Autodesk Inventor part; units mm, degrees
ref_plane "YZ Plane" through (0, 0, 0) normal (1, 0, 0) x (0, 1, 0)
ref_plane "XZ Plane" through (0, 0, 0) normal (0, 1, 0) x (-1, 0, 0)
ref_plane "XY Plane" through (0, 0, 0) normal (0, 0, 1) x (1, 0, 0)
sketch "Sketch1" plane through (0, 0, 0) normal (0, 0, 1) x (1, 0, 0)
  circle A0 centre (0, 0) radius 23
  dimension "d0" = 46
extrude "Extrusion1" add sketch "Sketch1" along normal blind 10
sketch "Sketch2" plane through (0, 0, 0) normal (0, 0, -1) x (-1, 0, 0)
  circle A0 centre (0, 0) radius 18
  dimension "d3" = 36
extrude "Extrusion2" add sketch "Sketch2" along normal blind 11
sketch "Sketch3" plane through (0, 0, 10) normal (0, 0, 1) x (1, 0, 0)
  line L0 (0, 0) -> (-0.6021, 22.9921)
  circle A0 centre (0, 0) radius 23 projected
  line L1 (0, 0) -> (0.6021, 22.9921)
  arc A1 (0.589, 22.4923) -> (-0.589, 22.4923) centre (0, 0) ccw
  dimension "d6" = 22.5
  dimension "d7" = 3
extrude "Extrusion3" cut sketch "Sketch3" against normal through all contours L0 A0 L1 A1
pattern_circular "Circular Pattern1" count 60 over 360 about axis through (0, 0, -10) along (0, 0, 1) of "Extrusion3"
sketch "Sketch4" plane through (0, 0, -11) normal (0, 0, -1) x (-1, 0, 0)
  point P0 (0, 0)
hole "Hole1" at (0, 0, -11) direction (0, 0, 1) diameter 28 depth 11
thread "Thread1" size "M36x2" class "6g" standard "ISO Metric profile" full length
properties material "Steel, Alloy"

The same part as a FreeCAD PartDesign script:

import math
import FreeCAD as App
import Part
import Sketcher

V = App.Vector
Q = App.Units.Quantity

doc = App.newDocument("Part")
body = doc.addObject("PartDesign::Body", "Body")

sketch1 = body.newObject("Sketcher::SketchObject", "Sketch")
sketch1.AttachmentSupport = (doc.getObject("XY_Plane"), [""])
sketch1.MapMode = "FlatFace"
sketch1.addGeometry(Part.Circle(V(0, 0, 0), V(0, 0, 1), 23), False)
sketch1.addConstraint([
    Sketcher.Constraint("Coincident", 0, 3, -1, 1),
    Sketcher.Constraint("Diameter", 0, Q("46 mm")),
])
pad1 = body.newObject("PartDesign::Pad", "Pad")
pad1.Profile = sketch1
pad1.Length = 10

sketch2 = body.newObject("Sketcher::SketchObject", "Sketch001")
sketch2.AttachmentSupport = (doc.getObject("XY_Plane"), [""])
sketch2.MapMode = "FlatFace"
sketch2.addGeometry(Part.Circle(V(0, 0, 0), V(0, 0, 1), 18), False)
sketch2.addConstraint([
    Sketcher.Constraint("Coincident", 0, 3, -1, 1),
    Sketcher.Constraint("Diameter", 0, Q("36 mm")),
])
pad2 = body.newObject("PartDesign::Pad", "Pad001")
pad2.Profile = sketch2
pad2.Length = 11
pad2.Reversed = True

sketch3 = body.newObject("Sketcher::SketchObject", "Sketch002")
sketch3.AttachmentSupport = (doc.getObject("XY_Plane"), [""])
sketch3.MapMode = "FlatFace"
sketch3.AttachmentOffset = App.Placement(V(0, 0, 10), App.Rotation())
sketch3.addGeometry([
    Part.LineSegment(V(-0.6, 22.99, 0), V(-0.59, 22.49, 0)),
    Part.ArcOfCircle(Part.Circle(V(0, 0, 0), V(0, 0, 1), 22.5), math.radians(88.5), math.radians(91.5)),
    Part.LineSegment(V(0.59, 22.49, 0), V(0.6, 22.99, 0)),
    Part.ArcOfCircle(Part.Circle(V(0, 0, 0), V(0, 0, 1), 23), math.radians(88.5), math.radians(91.5)),
], False)
sketch3.addConstraint([
    Sketcher.Constraint("Coincident", 0, 2, 1, 2),
    Sketcher.Constraint("Coincident", 1, 1, 2, 1),
    Sketcher.Constraint("Coincident", 2, 2, 3, 1),
    Sketcher.Constraint("Coincident", 3, 2, 0, 1),
    Sketcher.Constraint("Coincident", 1, 3, -1, 1),
    Sketcher.Constraint("Coincident", 3, 3, -1, 1),
    Sketcher.Constraint("Horizontal", 0, 2, 1, 1),
    Sketcher.Constraint("Horizontal", 2, 2, 3, 2),
    Sketcher.Constraint("Radius", 1, Q("22.5 mm")),
    Sketcher.Constraint("Radius", 3, Q("23 mm")),
    Sketcher.Constraint("Angle", 0, Q("-88.5 deg")),
    Sketcher.Constraint("DistanceX", 0, 2, -1, 1, Q("0.589 mm")),
])
pocket1 = body.newObject("PartDesign::Pocket", "Pocket")
pocket1.Profile = sketch3
pocket1.Type = "ThroughAll"
doc.recompute()

polarpattern = body.newObject("PartDesign::PolarPattern", "PolarPattern")
polarpattern.Originals = [pocket1]
polarpattern.Axis = (doc.getObject("Z_Axis"), [""])
polarpattern.Angle = 360
polarpattern.Occurrences = 60
body.Tip = polarpattern

sketch4 = body.newObject("Sketcher::SketchObject", "Sketch003")
sketch4.AttachmentSupport = (doc.getObject("XY_Plane"), [""])
sketch4.MapMode = "FlatFace"
sketch4.AttachmentOffset = App.Placement(V(0, 0, -11), App.Rotation())
sketch4.addGeometry(Part.Circle(V(0, 0, 0), V(0, 0, 1), 14), False)
sketch4.addConstraint([
    Sketcher.Constraint("Coincident", 0, 3, -1, 1),
    Sketcher.Constraint("Diameter", 0, Q("28 mm")),
])
doc.recompute()
hole = body.newObject("PartDesign::Hole", "Hole")
hole.Profile = sketch4
hole.ThreadType = "None"
hole.Diameter = 28
hole.DepthType = "Dimension"
hole.Depth = 11
hole.DrillPoint = "Flat"
hole.Reversed = True

doc.recompute()
